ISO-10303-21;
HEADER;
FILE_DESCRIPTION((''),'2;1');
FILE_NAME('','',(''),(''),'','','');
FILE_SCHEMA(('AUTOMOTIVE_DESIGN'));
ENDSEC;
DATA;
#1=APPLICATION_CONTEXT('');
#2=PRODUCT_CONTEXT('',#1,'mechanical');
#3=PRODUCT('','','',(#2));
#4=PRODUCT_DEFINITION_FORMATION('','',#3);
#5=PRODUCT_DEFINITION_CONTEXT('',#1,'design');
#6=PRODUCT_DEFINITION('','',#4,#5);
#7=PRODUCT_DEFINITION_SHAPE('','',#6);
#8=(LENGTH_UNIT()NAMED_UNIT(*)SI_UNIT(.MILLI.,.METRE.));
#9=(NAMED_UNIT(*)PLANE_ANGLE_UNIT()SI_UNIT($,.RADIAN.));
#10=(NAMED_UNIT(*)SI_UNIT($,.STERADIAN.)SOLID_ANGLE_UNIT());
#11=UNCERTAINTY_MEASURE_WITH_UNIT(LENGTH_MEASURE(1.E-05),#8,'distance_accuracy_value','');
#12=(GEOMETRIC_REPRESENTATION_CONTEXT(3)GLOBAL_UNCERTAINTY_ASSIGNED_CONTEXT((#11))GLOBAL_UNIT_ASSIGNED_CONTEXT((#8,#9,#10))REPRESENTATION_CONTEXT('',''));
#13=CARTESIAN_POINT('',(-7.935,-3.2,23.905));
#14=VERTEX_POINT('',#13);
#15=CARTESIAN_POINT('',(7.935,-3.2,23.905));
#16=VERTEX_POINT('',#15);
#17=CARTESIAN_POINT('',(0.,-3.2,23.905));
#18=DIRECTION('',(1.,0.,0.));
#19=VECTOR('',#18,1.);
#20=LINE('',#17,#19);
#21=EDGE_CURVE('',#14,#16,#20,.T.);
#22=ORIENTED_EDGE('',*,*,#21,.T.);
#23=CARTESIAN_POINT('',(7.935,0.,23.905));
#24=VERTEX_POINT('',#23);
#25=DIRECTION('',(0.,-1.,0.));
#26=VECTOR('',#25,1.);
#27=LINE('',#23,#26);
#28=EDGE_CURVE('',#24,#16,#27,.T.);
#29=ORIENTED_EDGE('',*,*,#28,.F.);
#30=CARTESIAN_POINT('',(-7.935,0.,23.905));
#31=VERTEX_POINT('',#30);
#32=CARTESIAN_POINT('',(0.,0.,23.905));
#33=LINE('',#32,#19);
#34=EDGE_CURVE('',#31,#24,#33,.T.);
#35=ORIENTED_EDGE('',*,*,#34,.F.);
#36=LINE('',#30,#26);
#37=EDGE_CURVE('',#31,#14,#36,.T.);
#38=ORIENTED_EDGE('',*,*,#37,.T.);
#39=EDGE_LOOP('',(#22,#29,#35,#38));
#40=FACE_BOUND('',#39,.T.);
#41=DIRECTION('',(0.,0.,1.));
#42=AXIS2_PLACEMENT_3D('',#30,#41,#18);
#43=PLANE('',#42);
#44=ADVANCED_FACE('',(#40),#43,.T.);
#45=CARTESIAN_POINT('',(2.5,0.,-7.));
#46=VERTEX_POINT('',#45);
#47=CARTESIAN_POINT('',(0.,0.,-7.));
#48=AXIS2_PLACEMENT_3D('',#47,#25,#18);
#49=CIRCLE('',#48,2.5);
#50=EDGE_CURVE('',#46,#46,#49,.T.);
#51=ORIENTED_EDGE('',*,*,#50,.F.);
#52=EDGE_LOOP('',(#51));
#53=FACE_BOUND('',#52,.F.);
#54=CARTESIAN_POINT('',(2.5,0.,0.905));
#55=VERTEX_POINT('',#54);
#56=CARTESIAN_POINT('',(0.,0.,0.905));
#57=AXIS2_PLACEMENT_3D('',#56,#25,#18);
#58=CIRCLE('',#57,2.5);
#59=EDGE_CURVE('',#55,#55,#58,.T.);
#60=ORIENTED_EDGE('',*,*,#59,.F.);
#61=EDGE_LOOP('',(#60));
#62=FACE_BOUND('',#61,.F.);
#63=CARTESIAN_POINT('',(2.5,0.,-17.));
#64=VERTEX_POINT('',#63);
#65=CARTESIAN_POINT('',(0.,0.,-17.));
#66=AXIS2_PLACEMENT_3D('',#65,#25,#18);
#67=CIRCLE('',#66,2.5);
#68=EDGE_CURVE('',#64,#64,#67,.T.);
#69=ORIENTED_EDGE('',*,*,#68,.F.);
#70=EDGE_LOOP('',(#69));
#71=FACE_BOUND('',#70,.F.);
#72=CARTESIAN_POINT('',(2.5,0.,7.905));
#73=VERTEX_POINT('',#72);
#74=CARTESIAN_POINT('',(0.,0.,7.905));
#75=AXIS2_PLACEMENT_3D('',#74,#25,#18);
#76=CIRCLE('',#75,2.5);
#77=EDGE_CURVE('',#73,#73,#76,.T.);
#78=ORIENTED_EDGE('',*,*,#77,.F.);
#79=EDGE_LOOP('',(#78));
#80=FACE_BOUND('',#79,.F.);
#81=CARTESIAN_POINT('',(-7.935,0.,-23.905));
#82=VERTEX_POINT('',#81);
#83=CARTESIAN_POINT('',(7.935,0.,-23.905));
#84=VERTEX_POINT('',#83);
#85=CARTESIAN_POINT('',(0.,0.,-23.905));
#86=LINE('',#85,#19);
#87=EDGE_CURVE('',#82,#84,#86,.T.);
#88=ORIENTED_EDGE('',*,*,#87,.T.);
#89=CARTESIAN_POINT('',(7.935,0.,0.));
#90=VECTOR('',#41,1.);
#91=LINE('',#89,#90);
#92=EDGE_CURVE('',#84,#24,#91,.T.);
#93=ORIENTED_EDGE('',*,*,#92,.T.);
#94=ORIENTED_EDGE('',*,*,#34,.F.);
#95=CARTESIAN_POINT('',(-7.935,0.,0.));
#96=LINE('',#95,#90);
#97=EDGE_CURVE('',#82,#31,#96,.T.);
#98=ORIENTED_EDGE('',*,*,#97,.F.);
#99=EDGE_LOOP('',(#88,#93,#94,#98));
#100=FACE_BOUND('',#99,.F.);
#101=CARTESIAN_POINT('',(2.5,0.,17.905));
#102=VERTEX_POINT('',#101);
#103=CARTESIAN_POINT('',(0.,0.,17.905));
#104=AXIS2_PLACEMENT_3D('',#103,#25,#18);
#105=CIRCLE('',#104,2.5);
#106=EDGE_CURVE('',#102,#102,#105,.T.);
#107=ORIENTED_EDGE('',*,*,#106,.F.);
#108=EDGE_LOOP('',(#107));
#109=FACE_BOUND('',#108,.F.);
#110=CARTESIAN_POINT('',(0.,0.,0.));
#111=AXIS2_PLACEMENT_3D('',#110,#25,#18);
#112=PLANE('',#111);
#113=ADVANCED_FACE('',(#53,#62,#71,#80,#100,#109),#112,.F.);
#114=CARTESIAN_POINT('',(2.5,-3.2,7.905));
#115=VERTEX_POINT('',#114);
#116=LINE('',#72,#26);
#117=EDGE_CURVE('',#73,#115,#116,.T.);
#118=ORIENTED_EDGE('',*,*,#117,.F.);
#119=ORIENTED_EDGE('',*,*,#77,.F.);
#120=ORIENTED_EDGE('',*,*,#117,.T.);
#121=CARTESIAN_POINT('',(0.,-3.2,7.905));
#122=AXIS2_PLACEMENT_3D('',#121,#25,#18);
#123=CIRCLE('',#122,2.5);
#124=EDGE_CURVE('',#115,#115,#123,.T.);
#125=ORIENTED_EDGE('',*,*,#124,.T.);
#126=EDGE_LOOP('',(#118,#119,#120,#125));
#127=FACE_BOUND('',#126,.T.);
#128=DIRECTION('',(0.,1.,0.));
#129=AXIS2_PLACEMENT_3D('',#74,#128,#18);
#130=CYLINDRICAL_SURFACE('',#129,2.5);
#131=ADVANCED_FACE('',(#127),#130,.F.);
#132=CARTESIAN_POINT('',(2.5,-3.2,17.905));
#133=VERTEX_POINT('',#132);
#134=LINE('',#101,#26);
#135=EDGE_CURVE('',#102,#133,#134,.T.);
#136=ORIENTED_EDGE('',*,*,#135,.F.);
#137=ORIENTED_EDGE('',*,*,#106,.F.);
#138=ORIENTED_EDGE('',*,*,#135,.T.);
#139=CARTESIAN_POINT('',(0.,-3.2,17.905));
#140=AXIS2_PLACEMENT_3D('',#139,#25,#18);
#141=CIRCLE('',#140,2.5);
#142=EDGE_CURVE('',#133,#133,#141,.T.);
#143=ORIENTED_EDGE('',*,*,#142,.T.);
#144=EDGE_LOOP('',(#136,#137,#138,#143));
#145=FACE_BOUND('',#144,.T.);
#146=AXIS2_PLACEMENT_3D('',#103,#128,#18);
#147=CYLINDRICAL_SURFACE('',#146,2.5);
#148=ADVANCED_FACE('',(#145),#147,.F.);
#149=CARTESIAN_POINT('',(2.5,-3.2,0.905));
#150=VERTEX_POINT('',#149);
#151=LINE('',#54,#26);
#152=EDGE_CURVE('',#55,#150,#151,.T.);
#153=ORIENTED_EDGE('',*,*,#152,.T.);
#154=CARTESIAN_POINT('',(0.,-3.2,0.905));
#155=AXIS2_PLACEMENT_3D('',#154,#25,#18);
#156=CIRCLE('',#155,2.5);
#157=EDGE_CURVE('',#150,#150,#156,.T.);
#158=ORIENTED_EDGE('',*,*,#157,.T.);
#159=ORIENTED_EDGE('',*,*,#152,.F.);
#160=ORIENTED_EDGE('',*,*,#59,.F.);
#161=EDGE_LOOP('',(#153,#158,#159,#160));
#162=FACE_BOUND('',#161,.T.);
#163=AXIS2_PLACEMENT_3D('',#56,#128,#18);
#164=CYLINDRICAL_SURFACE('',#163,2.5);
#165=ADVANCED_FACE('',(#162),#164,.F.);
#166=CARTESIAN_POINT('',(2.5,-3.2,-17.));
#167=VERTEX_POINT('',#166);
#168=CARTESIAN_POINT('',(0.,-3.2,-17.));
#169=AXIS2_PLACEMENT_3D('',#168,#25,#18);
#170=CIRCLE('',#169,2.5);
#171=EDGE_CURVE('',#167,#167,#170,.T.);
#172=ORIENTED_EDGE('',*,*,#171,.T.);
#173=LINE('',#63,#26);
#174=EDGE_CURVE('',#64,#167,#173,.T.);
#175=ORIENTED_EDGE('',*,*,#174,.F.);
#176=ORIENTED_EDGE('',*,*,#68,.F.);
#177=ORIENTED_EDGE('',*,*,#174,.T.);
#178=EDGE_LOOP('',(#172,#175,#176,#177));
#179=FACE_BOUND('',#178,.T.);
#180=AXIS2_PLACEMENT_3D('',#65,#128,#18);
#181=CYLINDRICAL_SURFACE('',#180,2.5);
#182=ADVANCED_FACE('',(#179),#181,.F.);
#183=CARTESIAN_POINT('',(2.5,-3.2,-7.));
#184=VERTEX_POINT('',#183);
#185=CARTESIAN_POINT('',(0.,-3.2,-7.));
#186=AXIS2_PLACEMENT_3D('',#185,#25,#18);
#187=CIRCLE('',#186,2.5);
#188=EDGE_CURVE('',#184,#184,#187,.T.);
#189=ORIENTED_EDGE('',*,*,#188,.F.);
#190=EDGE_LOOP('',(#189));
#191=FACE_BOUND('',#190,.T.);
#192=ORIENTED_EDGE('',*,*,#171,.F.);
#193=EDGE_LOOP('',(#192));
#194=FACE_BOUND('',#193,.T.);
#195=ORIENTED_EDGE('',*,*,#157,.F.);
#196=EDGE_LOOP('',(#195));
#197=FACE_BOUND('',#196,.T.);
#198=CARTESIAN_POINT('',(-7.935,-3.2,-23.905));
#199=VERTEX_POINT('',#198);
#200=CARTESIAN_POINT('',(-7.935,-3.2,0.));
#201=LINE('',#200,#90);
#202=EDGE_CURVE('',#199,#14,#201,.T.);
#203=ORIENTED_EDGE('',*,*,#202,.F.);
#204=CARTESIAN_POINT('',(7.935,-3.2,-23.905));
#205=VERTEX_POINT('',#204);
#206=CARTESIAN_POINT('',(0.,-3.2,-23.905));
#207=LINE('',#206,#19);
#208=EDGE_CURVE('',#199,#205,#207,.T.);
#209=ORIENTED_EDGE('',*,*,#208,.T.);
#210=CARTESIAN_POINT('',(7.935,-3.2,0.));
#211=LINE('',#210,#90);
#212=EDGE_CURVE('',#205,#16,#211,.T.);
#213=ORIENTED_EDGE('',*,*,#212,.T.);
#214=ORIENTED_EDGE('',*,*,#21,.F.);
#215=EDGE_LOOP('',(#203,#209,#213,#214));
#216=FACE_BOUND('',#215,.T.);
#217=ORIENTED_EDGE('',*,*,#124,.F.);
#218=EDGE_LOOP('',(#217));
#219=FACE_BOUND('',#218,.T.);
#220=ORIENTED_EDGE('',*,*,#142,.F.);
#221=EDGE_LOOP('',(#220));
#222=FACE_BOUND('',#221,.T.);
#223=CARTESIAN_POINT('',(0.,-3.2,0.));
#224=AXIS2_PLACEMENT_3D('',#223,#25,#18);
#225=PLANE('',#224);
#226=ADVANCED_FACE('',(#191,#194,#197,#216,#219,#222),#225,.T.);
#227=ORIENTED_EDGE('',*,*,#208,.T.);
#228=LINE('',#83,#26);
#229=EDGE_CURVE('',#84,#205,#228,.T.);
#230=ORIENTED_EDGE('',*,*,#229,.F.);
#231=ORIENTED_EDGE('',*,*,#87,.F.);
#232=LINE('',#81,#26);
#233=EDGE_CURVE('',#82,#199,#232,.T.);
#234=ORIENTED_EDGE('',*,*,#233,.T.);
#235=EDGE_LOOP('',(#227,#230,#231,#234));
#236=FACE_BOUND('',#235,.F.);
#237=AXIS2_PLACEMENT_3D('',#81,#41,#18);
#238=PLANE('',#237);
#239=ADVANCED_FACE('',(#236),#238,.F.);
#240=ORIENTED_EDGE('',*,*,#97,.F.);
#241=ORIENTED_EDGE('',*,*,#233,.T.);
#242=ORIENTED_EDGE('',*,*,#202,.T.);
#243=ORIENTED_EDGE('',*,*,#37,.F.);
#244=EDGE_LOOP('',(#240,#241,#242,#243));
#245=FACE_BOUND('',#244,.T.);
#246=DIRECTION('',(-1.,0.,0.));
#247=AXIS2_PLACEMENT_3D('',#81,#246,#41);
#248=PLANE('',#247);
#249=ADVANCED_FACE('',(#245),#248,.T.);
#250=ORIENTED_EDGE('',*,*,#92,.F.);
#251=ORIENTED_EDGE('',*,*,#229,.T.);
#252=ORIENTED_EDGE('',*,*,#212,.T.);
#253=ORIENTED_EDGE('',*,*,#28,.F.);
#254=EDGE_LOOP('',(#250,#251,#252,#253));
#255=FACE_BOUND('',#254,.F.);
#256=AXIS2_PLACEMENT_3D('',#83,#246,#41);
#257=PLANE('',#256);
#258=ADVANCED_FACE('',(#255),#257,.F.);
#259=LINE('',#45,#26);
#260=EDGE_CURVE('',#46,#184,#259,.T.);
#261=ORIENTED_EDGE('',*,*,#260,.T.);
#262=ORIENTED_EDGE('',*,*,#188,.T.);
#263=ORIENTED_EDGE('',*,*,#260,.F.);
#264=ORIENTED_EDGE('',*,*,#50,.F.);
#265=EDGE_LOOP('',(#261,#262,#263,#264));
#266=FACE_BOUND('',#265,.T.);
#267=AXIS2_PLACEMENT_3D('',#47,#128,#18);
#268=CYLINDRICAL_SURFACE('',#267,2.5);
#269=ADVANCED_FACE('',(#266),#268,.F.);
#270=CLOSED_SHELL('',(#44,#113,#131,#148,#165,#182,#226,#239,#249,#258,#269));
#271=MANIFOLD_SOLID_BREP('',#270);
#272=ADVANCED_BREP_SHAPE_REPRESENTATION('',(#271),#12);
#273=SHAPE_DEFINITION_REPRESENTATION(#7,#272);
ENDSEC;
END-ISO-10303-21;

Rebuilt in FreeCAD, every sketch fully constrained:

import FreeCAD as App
import Part
import Sketcher
from FreeCAD import Vector
Q = App.Units.Quantity

doc = App.newDocument("Part")
body = doc.addObject("PartDesign::Body", "Body")

# Sketch on XZ plane
sketch1 = body.newObject("Sketcher::SketchObject", "Sketch")
sketch1.AttachmentSupport = (doc.getObject("XZ_Plane"), [""])
sketch1.MapMode = "FlatFace"
sketch1.addGeometry([
    Part.LineSegment(Vector(-7.9, 23.9, 0), Vector(-7.9, -23.9, 0)),  # 0
    Part.LineSegment(Vector(-7.9, -23.9, 0), Vector(7.9, -23.9, 0)),  # 1
    Part.LineSegment(Vector(7.9, -23.9, 0), Vector(7.9, 23.9, 0)),  # 2
    Part.LineSegment(Vector(7.9, 23.9, 0), Vector(-7.9, 23.9, 0)),  # 3
    Part.Circle(Vector(0, -17, 0), Vector(0, 0, 1), 2.5),  # 4
    Part.Circle(Vector(0, -7, 0), Vector(0, 0, 1), 2.5),  # 5
    Part.Circle(Vector(0, 0.9, 0), Vector(0, 0, 1), 2.5),  # 6
    Part.Circle(Vector(0, 7.9, 0), Vector(0, 0, 1), 2.5),  # 7
    Part.Circle(Vector(0, 17.9, 0), Vector(0, 0, 1), 2.5),  # 8
], False)
sketch1.addConstraint([
    Sketcher.Constraint("Coincident", 0, 2, 1, 1),
    Sketcher.Constraint("Coincident", 1, 2, 2, 1),
    Sketcher.Constraint("Coincident", 2, 2, 3, 1),
    Sketcher.Constraint("Coincident", 3, 2, 0, 1),
    Sketcher.Constraint("Vertical", 0),
    Sketcher.Constraint("Horizontal", 1),
    Sketcher.Constraint("Vertical", 2),
    Sketcher.Constraint("Horizontal", 3),
    Sketcher.Constraint("Equal", 4, 5),
    Sketcher.Constraint("Equal", 5, 6),
    Sketcher.Constraint("Equal", 6, 7),
    Sketcher.Constraint("Equal", 7, 8),
    Sketcher.Constraint("Symmetric", 0, 2, 2, 2, -1, 1),
    Sketcher.Constraint("PointOnObject", 4, 3, -2),
    Sketcher.Constraint("PointOnObject", 5, 3, -2),
    Sketcher.Constraint("PointOnObject", 6, 3, -2),
    Sketcher.Constraint("PointOnObject", 7, 3, -2),
    Sketcher.Constraint("PointOnObject", 8, 3, -2),
    Sketcher.Constraint("Diameter", 4, Q("5 mm")),
    Sketcher.Constraint("DistanceY", 4, 3, -1, 1, Q("17 mm")),
    Sketcher.Constraint("DistanceY", 5, 3, -1, 1, Q("7 mm")),
    Sketcher.Constraint("DistanceY", 6, 3, 7, 3, Q("7 mm")),
    Sketcher.Constraint("DistanceY", 7, 3, 8, 3, Q("10 mm")),
    Sketcher.Constraint("DistanceY", 8, 3, 2, 2, Q("6 mm")),
    Sketcher.Constraint("DistanceX", 1, 1, 1, 2, Q("15.87 mm")),
    Sketcher.Constraint("DistanceY", 0, 2, 0, 1, Q("47.81 mm")),
])
pad1 = body.newObject("PartDesign::Pad", "Pad")
pad1.Profile = sketch1
pad1.Length = 3.2

doc.recompute()
